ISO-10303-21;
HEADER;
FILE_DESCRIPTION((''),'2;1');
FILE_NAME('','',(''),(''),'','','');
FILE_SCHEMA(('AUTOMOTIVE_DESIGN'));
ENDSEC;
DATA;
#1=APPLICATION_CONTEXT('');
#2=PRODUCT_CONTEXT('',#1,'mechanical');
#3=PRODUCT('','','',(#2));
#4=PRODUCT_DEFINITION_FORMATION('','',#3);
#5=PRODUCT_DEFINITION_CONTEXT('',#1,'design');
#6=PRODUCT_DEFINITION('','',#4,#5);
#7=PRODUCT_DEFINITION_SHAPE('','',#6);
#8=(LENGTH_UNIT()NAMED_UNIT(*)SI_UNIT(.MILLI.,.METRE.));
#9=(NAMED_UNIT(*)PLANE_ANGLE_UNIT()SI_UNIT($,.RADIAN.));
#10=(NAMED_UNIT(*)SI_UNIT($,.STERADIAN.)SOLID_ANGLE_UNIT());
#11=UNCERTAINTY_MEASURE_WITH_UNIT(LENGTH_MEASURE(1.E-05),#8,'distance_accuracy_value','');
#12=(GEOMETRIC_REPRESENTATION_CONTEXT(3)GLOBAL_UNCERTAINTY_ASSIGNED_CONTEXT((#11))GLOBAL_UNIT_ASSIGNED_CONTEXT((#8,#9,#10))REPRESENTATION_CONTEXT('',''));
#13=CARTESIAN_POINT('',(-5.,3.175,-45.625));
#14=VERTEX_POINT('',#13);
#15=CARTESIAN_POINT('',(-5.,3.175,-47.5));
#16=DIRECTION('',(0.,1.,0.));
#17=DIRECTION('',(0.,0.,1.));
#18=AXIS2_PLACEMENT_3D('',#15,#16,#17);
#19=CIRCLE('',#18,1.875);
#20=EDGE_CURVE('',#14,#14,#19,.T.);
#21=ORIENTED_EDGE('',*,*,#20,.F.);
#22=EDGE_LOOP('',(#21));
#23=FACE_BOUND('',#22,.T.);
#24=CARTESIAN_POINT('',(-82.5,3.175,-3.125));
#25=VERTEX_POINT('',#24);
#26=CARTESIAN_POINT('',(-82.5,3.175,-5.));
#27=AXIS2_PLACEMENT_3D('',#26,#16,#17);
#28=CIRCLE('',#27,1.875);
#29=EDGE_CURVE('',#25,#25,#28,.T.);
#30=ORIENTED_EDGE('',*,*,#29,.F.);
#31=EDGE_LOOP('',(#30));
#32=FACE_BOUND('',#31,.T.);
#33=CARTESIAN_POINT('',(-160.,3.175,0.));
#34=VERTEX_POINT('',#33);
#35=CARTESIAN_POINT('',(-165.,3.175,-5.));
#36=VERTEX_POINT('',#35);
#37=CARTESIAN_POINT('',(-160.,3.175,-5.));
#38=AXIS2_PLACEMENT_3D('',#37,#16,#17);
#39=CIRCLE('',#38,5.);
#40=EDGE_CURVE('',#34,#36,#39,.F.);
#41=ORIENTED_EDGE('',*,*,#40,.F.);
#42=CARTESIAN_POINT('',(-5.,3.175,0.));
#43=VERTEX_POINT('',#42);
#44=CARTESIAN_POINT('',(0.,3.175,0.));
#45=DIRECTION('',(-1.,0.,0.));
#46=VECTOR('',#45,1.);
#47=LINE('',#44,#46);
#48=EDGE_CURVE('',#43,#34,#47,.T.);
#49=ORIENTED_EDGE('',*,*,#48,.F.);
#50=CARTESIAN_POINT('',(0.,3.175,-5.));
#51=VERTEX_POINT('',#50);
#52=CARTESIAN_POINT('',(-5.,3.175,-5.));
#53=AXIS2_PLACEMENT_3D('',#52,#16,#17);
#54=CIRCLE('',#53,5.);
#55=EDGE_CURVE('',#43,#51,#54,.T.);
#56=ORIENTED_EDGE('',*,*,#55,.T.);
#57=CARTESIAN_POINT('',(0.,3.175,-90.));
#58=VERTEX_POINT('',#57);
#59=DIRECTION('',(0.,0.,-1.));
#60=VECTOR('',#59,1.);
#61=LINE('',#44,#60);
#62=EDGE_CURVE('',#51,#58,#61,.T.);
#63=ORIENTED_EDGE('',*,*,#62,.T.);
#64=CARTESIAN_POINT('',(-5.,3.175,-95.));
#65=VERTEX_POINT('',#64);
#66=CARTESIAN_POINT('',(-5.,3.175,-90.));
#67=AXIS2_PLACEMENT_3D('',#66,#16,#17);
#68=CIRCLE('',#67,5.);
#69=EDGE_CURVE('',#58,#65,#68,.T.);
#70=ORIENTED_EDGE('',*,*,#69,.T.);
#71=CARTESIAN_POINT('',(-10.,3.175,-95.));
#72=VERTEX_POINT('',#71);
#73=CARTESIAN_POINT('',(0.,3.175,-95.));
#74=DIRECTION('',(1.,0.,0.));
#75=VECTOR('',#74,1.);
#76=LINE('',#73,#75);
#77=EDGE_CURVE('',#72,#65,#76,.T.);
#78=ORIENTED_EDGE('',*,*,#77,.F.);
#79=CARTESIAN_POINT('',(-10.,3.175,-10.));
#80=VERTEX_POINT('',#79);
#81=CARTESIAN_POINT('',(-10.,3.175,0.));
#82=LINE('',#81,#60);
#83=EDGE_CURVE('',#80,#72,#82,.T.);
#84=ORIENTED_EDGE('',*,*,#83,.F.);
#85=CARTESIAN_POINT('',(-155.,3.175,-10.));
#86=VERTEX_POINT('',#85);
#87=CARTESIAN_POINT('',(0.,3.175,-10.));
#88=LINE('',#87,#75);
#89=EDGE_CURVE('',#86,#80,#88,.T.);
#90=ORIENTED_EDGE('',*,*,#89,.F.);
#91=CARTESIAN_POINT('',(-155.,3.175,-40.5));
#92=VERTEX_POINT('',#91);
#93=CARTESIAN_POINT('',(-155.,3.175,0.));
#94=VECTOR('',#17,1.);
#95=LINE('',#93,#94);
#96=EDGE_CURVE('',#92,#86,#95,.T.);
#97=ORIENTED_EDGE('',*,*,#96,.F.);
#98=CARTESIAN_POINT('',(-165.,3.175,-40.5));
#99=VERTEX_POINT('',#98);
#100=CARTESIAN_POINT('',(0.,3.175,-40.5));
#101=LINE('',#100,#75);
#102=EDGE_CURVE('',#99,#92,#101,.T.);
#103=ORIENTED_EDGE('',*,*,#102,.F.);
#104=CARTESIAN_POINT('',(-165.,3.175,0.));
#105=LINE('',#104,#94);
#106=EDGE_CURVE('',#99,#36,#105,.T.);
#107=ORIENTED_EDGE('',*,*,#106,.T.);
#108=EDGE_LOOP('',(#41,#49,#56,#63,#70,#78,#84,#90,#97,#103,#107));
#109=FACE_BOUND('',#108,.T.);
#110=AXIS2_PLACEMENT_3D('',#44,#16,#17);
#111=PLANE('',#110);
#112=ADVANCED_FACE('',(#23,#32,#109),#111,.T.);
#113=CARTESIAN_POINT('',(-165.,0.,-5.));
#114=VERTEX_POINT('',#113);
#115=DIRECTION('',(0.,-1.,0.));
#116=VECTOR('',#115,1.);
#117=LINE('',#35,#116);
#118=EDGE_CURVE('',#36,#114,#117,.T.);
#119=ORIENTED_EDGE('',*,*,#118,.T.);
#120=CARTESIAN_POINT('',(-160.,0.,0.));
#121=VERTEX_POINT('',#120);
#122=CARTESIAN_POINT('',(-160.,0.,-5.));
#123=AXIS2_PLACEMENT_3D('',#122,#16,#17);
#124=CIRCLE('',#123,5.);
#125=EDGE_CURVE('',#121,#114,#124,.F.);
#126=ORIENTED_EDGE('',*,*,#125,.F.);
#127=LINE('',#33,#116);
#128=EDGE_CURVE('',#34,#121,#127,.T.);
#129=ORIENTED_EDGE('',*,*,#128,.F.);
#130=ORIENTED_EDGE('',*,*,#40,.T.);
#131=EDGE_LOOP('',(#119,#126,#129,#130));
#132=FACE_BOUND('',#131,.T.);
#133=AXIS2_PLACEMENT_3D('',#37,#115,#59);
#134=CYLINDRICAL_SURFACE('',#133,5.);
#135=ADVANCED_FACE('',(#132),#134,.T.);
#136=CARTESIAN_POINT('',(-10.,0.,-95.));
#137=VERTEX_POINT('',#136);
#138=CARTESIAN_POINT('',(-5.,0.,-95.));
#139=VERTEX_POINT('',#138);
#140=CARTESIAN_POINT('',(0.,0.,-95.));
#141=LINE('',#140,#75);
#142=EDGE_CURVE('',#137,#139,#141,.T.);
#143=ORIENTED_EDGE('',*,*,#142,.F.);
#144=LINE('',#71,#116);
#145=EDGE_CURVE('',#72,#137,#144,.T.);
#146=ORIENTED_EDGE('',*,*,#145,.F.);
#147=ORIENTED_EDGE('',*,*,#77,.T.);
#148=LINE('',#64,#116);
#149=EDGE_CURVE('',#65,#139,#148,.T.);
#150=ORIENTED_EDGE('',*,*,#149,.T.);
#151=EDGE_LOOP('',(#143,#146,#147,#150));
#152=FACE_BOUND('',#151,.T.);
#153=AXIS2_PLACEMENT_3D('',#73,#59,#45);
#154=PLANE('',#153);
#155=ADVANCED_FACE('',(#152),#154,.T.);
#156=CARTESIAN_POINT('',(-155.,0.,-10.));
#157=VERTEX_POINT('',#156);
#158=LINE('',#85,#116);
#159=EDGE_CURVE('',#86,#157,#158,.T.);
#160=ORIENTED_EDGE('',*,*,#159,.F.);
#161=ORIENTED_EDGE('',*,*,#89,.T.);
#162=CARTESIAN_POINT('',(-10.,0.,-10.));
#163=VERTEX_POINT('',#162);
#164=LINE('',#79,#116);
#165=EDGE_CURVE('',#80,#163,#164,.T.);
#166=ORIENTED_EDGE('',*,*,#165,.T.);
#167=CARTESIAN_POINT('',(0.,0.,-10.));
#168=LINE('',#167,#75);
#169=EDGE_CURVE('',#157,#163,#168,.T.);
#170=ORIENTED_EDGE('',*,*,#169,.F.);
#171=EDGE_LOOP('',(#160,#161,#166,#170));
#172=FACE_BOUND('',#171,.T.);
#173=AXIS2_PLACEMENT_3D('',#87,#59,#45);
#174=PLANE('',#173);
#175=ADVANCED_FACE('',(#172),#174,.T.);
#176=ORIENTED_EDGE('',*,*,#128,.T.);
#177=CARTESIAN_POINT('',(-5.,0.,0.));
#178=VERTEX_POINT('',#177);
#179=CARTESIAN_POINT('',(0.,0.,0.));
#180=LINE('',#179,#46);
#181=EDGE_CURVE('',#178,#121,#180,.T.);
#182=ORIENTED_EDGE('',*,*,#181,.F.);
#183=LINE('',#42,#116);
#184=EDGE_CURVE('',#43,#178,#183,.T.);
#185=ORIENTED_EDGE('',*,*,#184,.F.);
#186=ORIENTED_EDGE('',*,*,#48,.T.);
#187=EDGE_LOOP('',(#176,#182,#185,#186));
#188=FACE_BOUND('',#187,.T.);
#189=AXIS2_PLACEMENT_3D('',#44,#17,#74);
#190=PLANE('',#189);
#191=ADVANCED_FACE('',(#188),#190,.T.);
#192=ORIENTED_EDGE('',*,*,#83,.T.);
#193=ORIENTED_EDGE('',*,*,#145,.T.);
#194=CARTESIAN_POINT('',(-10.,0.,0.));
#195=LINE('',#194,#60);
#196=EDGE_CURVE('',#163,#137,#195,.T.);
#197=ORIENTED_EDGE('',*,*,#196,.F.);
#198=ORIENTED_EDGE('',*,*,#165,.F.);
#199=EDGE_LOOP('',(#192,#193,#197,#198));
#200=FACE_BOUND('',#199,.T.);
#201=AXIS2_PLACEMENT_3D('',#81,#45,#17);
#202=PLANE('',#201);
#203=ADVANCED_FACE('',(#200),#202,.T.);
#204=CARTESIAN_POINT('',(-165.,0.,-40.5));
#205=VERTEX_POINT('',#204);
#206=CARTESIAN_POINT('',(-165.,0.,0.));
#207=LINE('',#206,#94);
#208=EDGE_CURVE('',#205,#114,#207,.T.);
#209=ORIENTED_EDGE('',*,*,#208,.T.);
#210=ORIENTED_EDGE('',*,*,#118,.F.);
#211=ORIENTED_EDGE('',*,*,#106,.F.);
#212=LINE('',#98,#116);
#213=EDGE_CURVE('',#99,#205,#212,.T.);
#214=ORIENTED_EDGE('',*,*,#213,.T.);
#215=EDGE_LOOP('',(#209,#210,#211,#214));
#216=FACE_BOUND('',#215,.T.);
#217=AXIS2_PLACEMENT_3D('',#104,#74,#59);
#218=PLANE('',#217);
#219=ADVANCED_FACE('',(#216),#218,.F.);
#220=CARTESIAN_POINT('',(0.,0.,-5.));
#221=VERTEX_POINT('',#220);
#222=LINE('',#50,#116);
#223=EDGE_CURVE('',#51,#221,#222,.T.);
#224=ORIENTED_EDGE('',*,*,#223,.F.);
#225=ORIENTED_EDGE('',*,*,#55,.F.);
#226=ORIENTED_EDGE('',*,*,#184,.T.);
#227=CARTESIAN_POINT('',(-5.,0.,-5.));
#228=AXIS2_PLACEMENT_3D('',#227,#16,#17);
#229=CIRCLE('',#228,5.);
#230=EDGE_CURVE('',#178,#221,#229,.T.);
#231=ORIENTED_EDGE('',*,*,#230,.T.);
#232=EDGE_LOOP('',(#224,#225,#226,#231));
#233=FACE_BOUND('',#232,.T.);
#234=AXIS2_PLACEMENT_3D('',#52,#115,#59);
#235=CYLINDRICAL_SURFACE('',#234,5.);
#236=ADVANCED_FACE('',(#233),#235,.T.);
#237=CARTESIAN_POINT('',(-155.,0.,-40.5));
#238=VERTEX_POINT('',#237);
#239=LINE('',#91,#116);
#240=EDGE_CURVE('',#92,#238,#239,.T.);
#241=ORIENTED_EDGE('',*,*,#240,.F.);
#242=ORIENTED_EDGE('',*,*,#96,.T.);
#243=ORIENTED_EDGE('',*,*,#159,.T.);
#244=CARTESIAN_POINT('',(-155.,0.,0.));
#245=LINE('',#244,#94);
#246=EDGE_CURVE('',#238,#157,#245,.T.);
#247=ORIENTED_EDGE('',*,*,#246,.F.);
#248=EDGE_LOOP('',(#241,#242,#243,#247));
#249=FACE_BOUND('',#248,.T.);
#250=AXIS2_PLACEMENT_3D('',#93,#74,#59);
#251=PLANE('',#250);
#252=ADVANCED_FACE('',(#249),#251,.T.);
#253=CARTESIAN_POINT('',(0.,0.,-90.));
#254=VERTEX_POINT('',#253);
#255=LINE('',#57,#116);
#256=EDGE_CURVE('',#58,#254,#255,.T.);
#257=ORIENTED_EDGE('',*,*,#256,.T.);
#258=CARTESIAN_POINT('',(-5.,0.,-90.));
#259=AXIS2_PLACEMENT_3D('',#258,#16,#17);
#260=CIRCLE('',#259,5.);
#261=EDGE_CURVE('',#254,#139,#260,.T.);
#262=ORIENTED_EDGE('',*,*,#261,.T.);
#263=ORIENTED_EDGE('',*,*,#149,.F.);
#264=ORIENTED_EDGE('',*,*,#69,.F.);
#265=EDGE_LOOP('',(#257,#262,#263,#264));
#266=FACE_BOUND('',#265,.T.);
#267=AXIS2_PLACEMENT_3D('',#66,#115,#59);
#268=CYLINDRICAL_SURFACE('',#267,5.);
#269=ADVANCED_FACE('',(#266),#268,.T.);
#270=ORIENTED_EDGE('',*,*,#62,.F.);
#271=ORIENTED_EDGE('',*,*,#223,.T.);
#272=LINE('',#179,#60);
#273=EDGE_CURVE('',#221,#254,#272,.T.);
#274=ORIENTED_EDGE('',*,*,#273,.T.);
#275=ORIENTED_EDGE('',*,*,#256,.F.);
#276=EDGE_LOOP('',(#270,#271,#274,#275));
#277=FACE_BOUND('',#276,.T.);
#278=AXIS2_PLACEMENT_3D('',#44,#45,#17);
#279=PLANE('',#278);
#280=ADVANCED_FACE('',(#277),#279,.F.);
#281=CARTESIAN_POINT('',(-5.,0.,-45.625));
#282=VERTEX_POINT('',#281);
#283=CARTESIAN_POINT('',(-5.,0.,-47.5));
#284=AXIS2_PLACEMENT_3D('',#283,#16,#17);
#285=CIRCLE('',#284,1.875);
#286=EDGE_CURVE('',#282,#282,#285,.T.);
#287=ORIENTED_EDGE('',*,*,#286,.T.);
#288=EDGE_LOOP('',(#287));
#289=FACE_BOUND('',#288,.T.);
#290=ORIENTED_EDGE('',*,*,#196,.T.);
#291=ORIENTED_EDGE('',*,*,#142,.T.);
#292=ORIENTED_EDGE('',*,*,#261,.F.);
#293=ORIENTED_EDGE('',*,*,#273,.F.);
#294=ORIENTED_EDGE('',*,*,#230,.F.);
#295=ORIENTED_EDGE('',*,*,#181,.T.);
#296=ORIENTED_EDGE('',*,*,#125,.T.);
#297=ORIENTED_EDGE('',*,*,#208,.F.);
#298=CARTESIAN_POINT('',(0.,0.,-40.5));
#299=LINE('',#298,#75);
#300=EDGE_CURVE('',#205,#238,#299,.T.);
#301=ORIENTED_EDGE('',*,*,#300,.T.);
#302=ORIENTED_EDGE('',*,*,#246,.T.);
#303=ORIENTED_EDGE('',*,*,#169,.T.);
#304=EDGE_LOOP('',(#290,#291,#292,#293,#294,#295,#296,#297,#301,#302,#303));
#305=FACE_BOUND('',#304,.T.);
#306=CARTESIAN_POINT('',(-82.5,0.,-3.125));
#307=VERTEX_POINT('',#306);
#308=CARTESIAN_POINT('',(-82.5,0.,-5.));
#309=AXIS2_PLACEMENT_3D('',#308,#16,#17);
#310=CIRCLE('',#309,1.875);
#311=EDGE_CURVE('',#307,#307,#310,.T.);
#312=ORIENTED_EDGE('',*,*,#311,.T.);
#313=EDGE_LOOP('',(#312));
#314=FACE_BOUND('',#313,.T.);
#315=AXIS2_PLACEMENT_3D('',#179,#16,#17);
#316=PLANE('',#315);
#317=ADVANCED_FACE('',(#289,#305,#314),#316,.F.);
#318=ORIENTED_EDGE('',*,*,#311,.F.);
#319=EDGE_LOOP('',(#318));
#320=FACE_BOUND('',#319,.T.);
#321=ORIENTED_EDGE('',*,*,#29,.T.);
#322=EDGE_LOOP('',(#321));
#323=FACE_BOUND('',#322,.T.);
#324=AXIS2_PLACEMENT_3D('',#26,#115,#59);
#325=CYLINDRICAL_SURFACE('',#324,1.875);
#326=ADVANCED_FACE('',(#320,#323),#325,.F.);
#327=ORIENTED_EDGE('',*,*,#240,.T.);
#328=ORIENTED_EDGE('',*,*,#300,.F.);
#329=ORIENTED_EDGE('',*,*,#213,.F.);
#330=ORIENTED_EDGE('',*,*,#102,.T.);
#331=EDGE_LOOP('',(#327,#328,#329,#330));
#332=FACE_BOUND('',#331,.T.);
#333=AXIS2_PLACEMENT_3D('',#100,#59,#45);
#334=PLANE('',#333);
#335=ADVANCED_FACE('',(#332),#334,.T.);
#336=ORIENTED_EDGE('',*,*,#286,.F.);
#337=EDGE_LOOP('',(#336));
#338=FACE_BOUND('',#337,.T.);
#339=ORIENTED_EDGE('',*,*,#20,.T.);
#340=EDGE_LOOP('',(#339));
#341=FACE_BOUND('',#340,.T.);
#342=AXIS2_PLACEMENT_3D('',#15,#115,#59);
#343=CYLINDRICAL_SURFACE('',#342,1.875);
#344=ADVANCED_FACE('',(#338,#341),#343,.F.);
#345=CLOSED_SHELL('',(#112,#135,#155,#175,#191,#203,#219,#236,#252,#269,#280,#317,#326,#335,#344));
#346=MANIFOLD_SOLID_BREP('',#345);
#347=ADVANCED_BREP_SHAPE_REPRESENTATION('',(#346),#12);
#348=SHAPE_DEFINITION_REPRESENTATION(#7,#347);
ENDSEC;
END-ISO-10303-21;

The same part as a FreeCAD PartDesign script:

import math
import FreeCAD as App
import Part
import Sketcher

doc = App.newDocument("Part")
body = doc.addObject("PartDesign::Body", "Body")

sketch1 = doc.addObject("Sketcher::SketchObject", "Sketch")
body.addObject(sketch1)
sketch1.AttachmentSupport = (doc.XZ_Plane, [""])
sketch1.MapMode = "FlatFace"
sketch1.addGeometry([
    Part.LineSegment(App.Vector(-160, 0, 0), App.Vector(-5, 0, 0)),
    Part.ArcOfCircle(Part.Circle(App.Vector(-5, -5, 0), App.Vector(0, 0, 1), 5), math.radians(0), math.radians(90)),
    Part.LineSegment(App.Vector(0, -5, 0), App.Vector(0, -90, 0)),
    Part.ArcOfCircle(Part.Circle(App.Vector(-5, -90, 0), App.Vector(0, 0, 1), 5), math.radians(-90), math.radians(0)),
    Part.LineSegment(App.Vector(-5, -95, 0), App.Vector(-10, -95, 0)),
    Part.LineSegment(App.Vector(-10, -95, 0), App.Vector(-10, -10, 0)),
    Part.LineSegment(App.Vector(-10, -10, 0), App.Vector(-155, -10, 0)),
    Part.LineSegment(App.Vector(-155, -10, 0), App.Vector(-155, -40.5, 0)),
    Part.LineSegment(App.Vector(-155, -40.5, 0), App.Vector(-165, -40.5, 0)),
    Part.LineSegment(App.Vector(-165, -40.5, 0), App.Vector(-165, -5, 0)),
    Part.ArcOfCircle(Part.Circle(App.Vector(-160, -5, 0), App.Vector(0, 0, 1), 5), math.radians(90), math.radians(180)),
    Part.Circle(App.Vector(-82.5, -5, 0), App.Vector(0, 0, 1), 1.9),
    Part.Circle(App.Vector(-5, -47.5, 0), App.Vector(0, 0, 1), 1.9),
], False)
sketch1.addConstraint([
    Sketcher.Constraint("Tangent", 0, 2, 1, 2),
    Sketcher.Constraint("Tangent", 1, 1, 2, 1),
    Sketcher.Constraint("Tangent", 2, 2, 3, 2),
    Sketcher.Constraint("Tangent", 3, 1, 4, 1),
    Sketcher.Constraint("Coincident", 4, 2, 5, 1),
    Sketcher.Constraint("Coincident", 5, 2, 6, 1),
    Sketcher.Constraint("Coincident", 6, 2, 7, 1),
    Sketcher.Constraint("Coincident", 7, 2, 8, 1),
    Sketcher.Constraint("Coincident", 8, 2, 9, 1),
    Sketcher.Constraint("Tangent", 9, 2, 10, 2),
    Sketcher.Constraint("Tangent", 10, 1, 0, 1),
    Sketcher.Constraint("Horizontal", 0),
    Sketcher.Constraint("Vertical", 2),
    Sketcher.Constraint("Horizontal", 4),
    Sketcher.Constraint("Vertical", 5),
    Sketcher.Constraint("Horizontal", 6),
    Sketcher.Constraint("Vertical", 7),
    Sketcher.Constraint("Horizontal", 8),
    Sketcher.Constraint("Vertical", 9),
    Sketcher.Constraint("Equal", 1, 3),
    Sketcher.Constraint("Equal", 3, 10),
    Sketcher.Constraint("Equal", 11, 12),
    Sketcher.Constraint("PointOnObject", 0, 2, -1),
    Sketcher.Constraint("PointOnObject", 1, 1, -2),
    Sketcher.Constraint("Horizontal", 10, 3, 11, 3),
    Sketcher.Constraint("Vertical", 3, 3, 12, 3),
    Sketcher.Constraint("Equal", 2, 5),
    Sketcher.Constraint("Radius", 1, 5.0),
    Sketcher.Constraint("Diameter", 11, 3.75),
    Sketcher.Constraint("DistanceX", 0, 1, 0, 2, 155.0),
    Sketcher.Constraint("DistanceX", 4, 2, 4, 1, 5.0),
    Sketcher.Constraint("DistanceX", 6, 2, 6, 1, 145.0),
    Sketcher.Constraint("DistanceY", 2, 2, 2, 1, 85.0),
    Sketcher.Constraint("DistanceY", 7, 2, 7, 1, 30.5),
    Sketcher.Constraint("DistanceY", 12, 3, 7, 2, 7.0),
    Sketcher.Constraint("DistanceX", 11, 3, -1, 1, 82.5),
])
pad1 = doc.addObject("PartDesign::Pad", "Pad")
body.addObject(pad1)
pad1.Profile = sketch1
pad1.Length = 3.175
pad1.Reversed = True

doc.recompute()
